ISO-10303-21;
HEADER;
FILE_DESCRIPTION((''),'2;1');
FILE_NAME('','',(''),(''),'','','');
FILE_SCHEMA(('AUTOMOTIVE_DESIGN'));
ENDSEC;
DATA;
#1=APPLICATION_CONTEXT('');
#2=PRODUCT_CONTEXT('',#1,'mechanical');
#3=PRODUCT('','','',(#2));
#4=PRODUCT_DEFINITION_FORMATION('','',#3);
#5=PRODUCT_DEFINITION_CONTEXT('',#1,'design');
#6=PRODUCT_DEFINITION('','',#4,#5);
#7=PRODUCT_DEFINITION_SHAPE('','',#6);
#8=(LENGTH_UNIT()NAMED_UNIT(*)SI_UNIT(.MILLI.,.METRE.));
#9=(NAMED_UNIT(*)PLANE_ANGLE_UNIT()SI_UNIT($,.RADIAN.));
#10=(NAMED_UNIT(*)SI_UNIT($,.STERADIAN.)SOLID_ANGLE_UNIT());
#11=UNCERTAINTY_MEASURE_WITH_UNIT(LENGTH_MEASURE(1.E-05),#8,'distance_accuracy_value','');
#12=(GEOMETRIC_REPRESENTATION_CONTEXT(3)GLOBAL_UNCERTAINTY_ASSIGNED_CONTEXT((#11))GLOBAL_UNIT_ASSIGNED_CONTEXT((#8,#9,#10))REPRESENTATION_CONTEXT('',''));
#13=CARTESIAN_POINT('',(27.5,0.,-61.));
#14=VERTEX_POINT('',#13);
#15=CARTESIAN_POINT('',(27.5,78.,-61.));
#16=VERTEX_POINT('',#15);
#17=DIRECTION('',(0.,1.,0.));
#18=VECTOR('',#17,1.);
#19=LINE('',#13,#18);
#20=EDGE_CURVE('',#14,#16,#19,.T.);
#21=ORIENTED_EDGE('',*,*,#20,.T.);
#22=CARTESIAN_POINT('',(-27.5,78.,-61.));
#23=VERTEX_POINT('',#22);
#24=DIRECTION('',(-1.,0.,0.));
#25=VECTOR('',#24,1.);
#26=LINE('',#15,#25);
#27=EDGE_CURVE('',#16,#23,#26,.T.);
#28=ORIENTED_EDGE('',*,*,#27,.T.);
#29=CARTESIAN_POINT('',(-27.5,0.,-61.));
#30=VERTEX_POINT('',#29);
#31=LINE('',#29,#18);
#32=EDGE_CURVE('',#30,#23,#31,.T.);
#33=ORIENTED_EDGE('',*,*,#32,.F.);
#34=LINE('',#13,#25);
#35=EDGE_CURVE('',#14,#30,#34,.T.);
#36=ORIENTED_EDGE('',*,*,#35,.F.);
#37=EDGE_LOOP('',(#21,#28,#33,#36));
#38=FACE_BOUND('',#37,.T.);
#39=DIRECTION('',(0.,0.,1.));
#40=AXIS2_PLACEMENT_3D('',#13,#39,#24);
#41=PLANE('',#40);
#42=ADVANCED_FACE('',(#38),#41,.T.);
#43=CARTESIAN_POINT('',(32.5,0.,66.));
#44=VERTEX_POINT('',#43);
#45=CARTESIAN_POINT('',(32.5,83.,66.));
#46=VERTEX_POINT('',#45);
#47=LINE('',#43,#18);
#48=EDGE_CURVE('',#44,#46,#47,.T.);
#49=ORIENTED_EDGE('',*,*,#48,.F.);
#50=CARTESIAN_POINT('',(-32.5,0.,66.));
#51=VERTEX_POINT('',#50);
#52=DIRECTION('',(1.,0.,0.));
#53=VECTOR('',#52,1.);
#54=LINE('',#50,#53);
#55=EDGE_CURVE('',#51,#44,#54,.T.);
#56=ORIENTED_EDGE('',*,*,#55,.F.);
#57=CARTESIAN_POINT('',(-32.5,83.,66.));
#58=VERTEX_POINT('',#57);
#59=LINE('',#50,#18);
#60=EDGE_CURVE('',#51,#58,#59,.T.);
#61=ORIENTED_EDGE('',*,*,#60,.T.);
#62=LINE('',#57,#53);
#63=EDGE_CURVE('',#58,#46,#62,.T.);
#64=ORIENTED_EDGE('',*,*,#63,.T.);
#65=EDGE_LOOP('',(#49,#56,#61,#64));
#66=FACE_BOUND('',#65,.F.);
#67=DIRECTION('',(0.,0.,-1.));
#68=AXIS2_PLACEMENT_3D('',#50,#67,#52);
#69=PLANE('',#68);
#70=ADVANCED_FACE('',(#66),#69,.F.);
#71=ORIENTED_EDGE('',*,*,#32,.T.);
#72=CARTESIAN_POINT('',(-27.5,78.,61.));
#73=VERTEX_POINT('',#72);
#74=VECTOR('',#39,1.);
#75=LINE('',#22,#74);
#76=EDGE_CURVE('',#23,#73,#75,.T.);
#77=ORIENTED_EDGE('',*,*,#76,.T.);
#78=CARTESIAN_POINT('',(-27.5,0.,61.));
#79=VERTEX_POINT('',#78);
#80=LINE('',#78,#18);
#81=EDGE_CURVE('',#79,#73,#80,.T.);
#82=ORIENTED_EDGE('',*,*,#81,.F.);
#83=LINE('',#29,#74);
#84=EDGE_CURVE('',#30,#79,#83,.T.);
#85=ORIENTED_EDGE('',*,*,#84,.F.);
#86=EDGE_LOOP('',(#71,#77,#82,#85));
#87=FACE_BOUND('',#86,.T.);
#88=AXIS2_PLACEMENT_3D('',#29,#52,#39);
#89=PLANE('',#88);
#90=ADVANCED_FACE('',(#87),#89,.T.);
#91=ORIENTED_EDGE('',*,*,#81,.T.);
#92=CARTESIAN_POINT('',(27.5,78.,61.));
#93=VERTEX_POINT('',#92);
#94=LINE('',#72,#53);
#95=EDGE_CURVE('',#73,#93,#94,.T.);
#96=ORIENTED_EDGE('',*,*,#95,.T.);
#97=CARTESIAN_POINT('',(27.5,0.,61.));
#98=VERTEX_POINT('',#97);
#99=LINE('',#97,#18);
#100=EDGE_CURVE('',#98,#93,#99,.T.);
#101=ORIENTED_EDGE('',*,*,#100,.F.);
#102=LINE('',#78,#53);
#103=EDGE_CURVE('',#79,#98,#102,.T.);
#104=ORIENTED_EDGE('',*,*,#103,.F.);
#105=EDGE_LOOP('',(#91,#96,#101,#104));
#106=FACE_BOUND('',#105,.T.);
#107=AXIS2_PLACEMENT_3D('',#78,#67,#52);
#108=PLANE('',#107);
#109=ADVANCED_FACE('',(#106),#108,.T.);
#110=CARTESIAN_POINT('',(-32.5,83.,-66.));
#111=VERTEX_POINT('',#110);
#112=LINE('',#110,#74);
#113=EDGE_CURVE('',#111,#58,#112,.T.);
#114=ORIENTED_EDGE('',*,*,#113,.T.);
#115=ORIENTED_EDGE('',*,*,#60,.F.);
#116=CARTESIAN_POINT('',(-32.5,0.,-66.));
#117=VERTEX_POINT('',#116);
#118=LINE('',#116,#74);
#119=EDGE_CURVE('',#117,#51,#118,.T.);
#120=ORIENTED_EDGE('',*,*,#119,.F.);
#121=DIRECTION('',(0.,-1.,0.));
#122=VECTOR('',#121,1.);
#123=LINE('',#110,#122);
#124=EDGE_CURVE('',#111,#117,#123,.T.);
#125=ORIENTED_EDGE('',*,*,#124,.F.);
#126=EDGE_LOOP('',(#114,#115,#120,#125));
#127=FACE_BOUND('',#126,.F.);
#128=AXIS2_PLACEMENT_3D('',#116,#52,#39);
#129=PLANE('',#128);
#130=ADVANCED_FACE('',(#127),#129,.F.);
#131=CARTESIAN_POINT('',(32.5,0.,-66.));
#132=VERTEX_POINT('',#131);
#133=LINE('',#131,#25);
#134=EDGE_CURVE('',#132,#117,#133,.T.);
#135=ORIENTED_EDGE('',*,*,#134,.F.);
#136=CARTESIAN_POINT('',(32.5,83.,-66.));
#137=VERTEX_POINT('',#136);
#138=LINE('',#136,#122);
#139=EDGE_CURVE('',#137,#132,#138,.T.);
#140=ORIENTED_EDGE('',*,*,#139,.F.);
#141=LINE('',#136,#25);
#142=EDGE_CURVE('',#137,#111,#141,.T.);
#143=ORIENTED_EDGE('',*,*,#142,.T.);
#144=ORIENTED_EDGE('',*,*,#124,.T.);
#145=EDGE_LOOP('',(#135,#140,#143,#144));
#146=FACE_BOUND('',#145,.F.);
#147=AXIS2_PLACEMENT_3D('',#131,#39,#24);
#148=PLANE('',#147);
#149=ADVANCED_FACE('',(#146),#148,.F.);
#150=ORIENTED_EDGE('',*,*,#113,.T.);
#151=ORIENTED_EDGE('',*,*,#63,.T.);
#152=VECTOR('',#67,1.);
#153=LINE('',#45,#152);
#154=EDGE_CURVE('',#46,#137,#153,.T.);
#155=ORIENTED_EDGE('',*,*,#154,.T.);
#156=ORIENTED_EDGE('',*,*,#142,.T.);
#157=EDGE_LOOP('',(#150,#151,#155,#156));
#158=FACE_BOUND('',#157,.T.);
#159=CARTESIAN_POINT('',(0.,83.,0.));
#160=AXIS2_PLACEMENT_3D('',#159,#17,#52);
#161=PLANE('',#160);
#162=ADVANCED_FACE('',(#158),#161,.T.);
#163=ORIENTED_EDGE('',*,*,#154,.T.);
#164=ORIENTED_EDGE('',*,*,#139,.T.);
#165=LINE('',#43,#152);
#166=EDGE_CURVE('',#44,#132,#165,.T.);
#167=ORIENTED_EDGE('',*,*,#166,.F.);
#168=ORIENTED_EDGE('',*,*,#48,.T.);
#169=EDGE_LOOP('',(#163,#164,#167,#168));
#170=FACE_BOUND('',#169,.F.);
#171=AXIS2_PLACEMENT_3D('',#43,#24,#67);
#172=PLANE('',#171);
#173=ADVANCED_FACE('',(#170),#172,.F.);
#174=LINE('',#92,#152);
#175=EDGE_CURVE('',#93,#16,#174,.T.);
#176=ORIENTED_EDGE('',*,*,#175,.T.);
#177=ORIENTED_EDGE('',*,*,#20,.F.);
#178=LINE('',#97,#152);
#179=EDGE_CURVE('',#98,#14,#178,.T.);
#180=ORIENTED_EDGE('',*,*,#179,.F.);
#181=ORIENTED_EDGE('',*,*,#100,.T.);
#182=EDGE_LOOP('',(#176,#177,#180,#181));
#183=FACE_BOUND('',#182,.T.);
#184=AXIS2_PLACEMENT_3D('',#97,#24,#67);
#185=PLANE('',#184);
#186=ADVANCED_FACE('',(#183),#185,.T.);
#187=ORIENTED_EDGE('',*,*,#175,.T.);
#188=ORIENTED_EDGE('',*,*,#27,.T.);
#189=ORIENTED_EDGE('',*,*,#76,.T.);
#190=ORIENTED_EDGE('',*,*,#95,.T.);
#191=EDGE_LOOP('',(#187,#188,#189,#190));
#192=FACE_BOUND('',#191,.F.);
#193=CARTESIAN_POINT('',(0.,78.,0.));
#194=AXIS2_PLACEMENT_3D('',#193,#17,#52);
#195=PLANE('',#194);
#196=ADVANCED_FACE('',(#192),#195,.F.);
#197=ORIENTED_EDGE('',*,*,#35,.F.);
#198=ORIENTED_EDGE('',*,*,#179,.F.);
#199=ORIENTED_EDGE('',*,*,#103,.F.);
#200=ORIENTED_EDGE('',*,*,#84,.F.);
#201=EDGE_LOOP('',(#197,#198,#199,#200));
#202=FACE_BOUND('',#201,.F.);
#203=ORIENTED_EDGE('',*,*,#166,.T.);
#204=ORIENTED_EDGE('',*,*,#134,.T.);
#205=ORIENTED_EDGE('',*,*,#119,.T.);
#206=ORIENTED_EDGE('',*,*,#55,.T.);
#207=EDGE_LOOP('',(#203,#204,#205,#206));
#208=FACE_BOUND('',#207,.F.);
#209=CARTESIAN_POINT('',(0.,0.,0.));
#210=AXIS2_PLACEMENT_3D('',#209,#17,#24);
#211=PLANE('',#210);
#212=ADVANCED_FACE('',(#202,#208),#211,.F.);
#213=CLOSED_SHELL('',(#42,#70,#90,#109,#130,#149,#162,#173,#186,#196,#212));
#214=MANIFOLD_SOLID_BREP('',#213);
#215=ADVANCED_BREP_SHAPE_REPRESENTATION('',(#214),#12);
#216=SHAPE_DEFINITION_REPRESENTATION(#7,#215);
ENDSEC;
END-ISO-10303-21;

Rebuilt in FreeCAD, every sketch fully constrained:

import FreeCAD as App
import Part
import Sketcher
from FreeCAD import Vector


def add_polygon(sketch, points):
    """Adds a closed chain of lines whose ends are joined by coincident constraints."""
    first, n = sketch.GeometryCount, len(points)
    for a, b in zip(points, points[1:] + points[:1]):
        sketch.addGeometry(Part.LineSegment(App.Vector(*a, 0), App.Vector(*b, 0)), False)
    for i in range(n):
        sketch.addConstraint(Sketcher.Constraint("Coincident", first + i, 2, first + (i + 1) % n, 1))

doc = App.newDocument("Part")
body = doc.addObject("PartDesign::Body", "Body")

# Sketch on XZ plane
sketch1 = body.newObject("Sketcher::SketchObject", "Sketch")
sketch1.AttachmentSupport = (doc.getObject("XZ_Plane"), [""])
sketch1.MapMode = "FlatFace"
add_polygon(sketch1, [(-32, -66), (-32, 66), (32, 66), (32, -66)])  # lines 0-3
add_polygon(sketch1, [(28, 61), (-28, 61), (-28, -61), (28, -61)])  # lines 4-7
sketch1.addConstraint([
    Sketcher.Constraint("Vertical", 0),
    Sketcher.Constraint("Horizontal", 1),
    Sketcher.Constraint("Vertical", 2),
    Sketcher.Constraint("Horizontal", 3),
    Sketcher.Constraint("Horizontal", 4),
    Sketcher.Constraint("Vertical", 5),
    Sketcher.Constraint("Horizontal", 6),
    Sketcher.Constraint("Vertical", 7),
    Sketcher.Constraint("Symmetric", 0, 2, 2, 2, -1, 1),
    Sketcher.Constraint("Symmetric", 4, 2, 6, 2, -1, 1),
    Sketcher.Constraint("DistanceX", 4, 2, 4, 1, 55.0),
    Sketcher.Constraint("DistanceY", 5, 2, 5, 1, 122.0),
    Sketcher.Constraint("DistanceX", 0, 2, 4, 2, 5.0),
    Sketcher.Constraint("DistanceY", 4, 2, 0, 2, 5.0),
])
pad1 = body.newObject("PartDesign::Pad", "Pad")
pad1.Profile = sketch1
pad1.Length = 78
pad1.Reversed = True

# Sketch on XZ plane
sketch2 = body.newObject("Sketcher::SketchObject", "Sketch001")
sketch2.AttachmentSupport = (doc.getObject("XZ_Plane"), [""])
sketch2.MapMode = "FlatFace"
sketch2.AttachmentOffset = App.Placement(Vector(0, 0, -78), App.Rotation())
add_polygon(sketch2, [(32, 66), (32, -66), (-32, -66), (-32, 66)])  # lines 0-3
sketch2.addConstraint([
    Sketcher.Constraint("Vertical", 0),
    Sketcher.Constraint("Horizontal", 1),
    Sketcher.Constraint("Vertical", 2),
    Sketcher.Constraint("Horizontal", 3),
    Sketcher.Constraint("Symmetric", 0, 2, 2, 2, -1, 1),
    Sketcher.Constraint("DistanceX", 1, 2, 1, 1, 65.0),
    Sketcher.Constraint("DistanceY", 0, 2, 0, 1, 132.0),
])
pad2 = body.newObject("PartDesign::Pad", "Pad001")
pad2.Profile = sketch2
pad2.Length = 5
pad2.Reversed = True

doc.recompute()
